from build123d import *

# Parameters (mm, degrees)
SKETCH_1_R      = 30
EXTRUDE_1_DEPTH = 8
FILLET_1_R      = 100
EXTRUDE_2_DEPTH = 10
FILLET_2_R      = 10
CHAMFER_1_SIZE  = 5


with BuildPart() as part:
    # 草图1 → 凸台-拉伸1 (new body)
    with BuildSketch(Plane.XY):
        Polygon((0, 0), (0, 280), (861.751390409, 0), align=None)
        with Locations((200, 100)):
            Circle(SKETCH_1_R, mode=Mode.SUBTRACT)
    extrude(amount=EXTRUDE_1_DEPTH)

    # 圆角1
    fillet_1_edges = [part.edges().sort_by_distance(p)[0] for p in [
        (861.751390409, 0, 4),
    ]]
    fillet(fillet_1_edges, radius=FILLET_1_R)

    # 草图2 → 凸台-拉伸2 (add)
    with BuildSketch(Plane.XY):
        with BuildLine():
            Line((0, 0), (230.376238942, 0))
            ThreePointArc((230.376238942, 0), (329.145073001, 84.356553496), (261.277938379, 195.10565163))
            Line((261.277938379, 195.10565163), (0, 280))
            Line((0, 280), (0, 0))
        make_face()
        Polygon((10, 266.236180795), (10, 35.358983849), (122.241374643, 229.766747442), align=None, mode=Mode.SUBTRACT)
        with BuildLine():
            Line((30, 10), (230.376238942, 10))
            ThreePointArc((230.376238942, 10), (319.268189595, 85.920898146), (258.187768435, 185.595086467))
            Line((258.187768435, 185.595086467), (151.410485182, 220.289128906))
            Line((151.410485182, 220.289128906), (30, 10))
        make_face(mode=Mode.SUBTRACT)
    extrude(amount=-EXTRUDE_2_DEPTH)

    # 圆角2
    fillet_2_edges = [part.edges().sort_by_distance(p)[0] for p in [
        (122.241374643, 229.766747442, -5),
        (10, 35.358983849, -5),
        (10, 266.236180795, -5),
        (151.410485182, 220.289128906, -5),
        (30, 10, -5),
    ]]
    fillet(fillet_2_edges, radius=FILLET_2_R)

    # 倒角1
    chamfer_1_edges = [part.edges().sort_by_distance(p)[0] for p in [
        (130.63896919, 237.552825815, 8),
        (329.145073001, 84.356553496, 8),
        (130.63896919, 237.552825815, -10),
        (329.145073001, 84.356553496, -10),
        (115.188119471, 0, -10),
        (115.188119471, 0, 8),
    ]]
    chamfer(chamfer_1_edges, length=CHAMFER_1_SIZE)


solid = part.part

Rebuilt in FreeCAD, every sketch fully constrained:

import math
import FreeCAD as App
import Part
import Sketcher
from FreeCAD import Vector
Q = App.Units.Quantity


def edges_at(feature, points):
    """Names of the edges that pass closest to the given points."""
    edges = feature.Shape.Edges
    near = lambda p: min(range(len(edges)), key=lambda i: edges[i].distToShape(Part.Vertex(*p))[0])
    return sorted({f"Edge{near(p) + 1}" for p in points})


def add_polygon(sketch, points):
    """Adds a closed chain of lines whose ends are joined by coincident constraints."""
    first, n = sketch.GeometryCount, len(points)
    for a, b in zip(points, points[1:] + points[:1]):
        sketch.addGeometry(Part.LineSegment(App.Vector(*a, 0), App.Vector(*b, 0)), False)
    for i in range(n):
        sketch.addConstraint(Sketcher.Constraint("Coincident", first + i, 2, first + (i + 1) % n, 1))

doc = App.newDocument("Part")
params = doc.addObject("Spreadsheet::Sheet", "Params")
for row, (alias, value) in enumerate([
    ("sketch1_diameter", "60 mm"),
    ("sketch1_height", "280 mm"),
    ("pad1_length", "8 mm"),
    ("fillet_radius", "100 mm"),
    ("sketch2_radius", "100 mm"),
    ("sketch2_radius2", "90 mm"),
    ("sketch2_height", "280 mm"),
    ("pad2_length", "10 mm"),
    ("fillet2_radius", "10 mm"),
    ("chamfer_size", "5 mm"),
], start=1):
    params.set(f"A{row}", alias)
    params.set(f"B{row}", "=" + value)
    params.setAlias(f"B{row}", alias)

body = doc.addObject("PartDesign::Body", "Body")

# Sketch on XY plane
sketch1 = body.newObject("Sketcher::SketchObject", "Sketch")
sketch1.AttachmentSupport = (doc.getObject("XY_Plane"), [""])
sketch1.MapMode = "FlatFace"
add_polygon(sketch1, [(0, 280), (0, 0), (861.75139, 0)])  # lines 0-2
sketch1.addGeometry(Part.Circle(Vector(200, 100, 0), Vector(0, 0, 1), 30), False)  # 3
sketch1.addConstraint(Sketcher.Constraint("Vertical", 0))
sketch1.addConstraint(Sketcher.Constraint("Horizontal", 1))
sketch1.addConstraint(Sketcher.Constraint("Coincident", 0, 2, -1, 1))
sketch1.addConstraint(Sketcher.Constraint("Diameter", 3, 60.0))
sketch1.addConstraint(Sketcher.Constraint("DistanceY", 0, 2, 0, 1, 280.0))
sketch1.addConstraint(Sketcher.Constraint("Angle", 2, Q("162 deg")))
sketch1.addConstraint(Sketcher.Constraint("DistanceX", -1, 1, 3, 3, 200.0))
sketch1.addConstraint(Sketcher.Constraint("DistanceY", -1, 1, 3, 3, 100.0))
sketch1.setExpression("Constraints[6]", "Params.sketch1_diameter")
sketch1.setExpression("Constraints[7]", "Params.sketch1_height")
pad1 = body.newObject("PartDesign::Pad", "Pad")
pad1.Profile = sketch1
pad1.setExpression("Length", "Params.pad1_length")
doc.recompute()

fillet = body.newObject("PartDesign::Fillet", "Fillet")
fillet.Base = (pad1, edges_at(pad1, [(861.751, 0, 4)]))
fillet.setExpression("Radius", "Params.fillet_radius")

# Sketch on XY plane
sketch2 = body.newObject("Sketcher::SketchObject", "Sketch001")
sketch2.AttachmentSupport = (doc.getObject("XY_Plane"), [""])
sketch2.MapMode = "FlatFace"
sketch2.addGeometry(Part.LineSegment(Vector(0, 0, 0), Vector(230.376239, 0, 0)), False)  # 0
sketch2.addGeometry(Part.ArcOfCircle(Part.Circle(Vector(230.376239, 100, 0), Vector(0, 0, 1), 100), math.radians(-90), math.radians(72)), False)  # 1
sketch2.addGeometry(Part.LineSegment(Vector(261.277938, 195.105652, 0), Vector(0, 280, 0)), False)  # 2
sketch2.addGeometry(Part.LineSegment(Vector(0, 280, 0), Vector(0, 0, 0)), False)  # 3
sketch2.addGeometry(Part.LineSegment(Vector(230.376239, 10, 0), Vector(30, 10, 0)), False)  # 4
sketch2.addGeometry(Part.LineSegment(Vector(30, 10, 0), Vector(151.410485, 220.289129, 0)), False)  # 5
sketch2.addGeometry(Part.LineSegment(Vector(151.410485, 220.289129, 0), Vector(258.187768, 185.595086, 0)), False)  # 6
sketch2.addGeometry(Part.ArcOfCircle(Part.Circle(Vector(230.376239, 100, 0), Vector(0, 0, 1), 90), math.radians(-90), math.radians(72)), False)  # 7
add_polygon(sketch2, [(10, 35.358984), (10, 266.236181), (122.241375, 229.766747)])  # lines 8-10
sketch2.addConstraint(Sketcher.Constraint("Tangent", 0, 2, 1, 1))
sketch2.addConstraint(Sketcher.Constraint("Tangent", 1, 2, 2, 1))
sketch2.addConstraint(Sketcher.Constraint("Coincident", 2, 2, 3, 1))
sketch2.addConstraint(Sketcher.Constraint("Coincident", 3, 2, 0, 1))
sketch2.addConstraint(Sketcher.Constraint("Coincident", 4, 2, 5, 1))
sketch2.addConstraint(Sketcher.Constraint("Coincident", 5, 2, 6, 1))
sketch2.addConstraint(Sketcher.Constraint("Tangent", 6, 2, 7, 2))
sketch2.addConstraint(Sketcher.Constraint("Tangent", 7, 1, 4, 1))
sketch2.addConstraint(Sketcher.Constraint("Horizontal", 0))
sketch2.addConstraint(Sketcher.Constraint("Vertical", 3))
sketch2.addConstraint(Sketcher.Constraint("Horizontal", 4))
sketch2.addConstraint(Sketcher.Constraint("Vertical", 8))
sketch2.addConstraint(Sketcher.Constraint("Coincident", 3, 2, -1, 1))
sketch2.addConstraint(Sketcher.Constraint("Coincident", 7, 3, 1, 3))
sketch2.addConstraint(Sketcher.Constraint("Parallel", 2, 6))
sketch2.addConstraint(Sketcher.Constraint("Parallel", 6, 9))
sketch2.addConstraint(Sketcher.Constraint("Parallel", 5, 10))
sketch2.addConstraint(Sketcher.Constraint("Radius", 1, 100.0))
sketch2.addConstraint(Sketcher.Constraint("Radius", 7, 90.0))
sketch2.addConstraint(Sketcher.Constraint("DistanceY", 3, 2, 3, 1, 280.0))
sketch2.addConstraint(Sketcher.Constraint("Angle", 2, Q("162 deg")))
sketch2.addConstraint(Sketcher.Constraint("Angle", 5, Q("60 deg")))
sketch2.addConstraint(Sketcher.Constraint("DistanceX", -1, 1, 4, 2, 30.0))
sketch2.addConstraint(Sketcher.Constraint("DistanceX", -1, 1, 8, 2, 10.0))
sketch2.addConstraint(Sketcher.Constraint("Distance", 10, 224.482749))
sketch2.addConstraint(Sketcher.Constraint("DistanceY", -1, 1, 8, 2, 266.236181))
sketch2.setExpression("Constraints[20]", "Params.sketch2_radius")
sketch2.setExpression("Constraints[21]", "Params.sketch2_radius2")
sketch2.setExpression("Constraints[22]", "Params.sketch2_height")
pad2 = body.newObject("PartDesign::Pad", "Pad001")
pad2.Profile = sketch2
pad2.setExpression("Length", "Params.pad2_length")
pad2.Reversed = True
doc.recompute()

fillet2 = body.newObject("PartDesign::Fillet", "Fillet001")
fillet2.Base = (pad2, edges_at(pad2, [
    (122.241, 229.767, -5),
    (10, 35.359, -5),
    (10, 266.236, -5),
    (151.41, 220.289, -5),
    (30, 10, -5),
]))
fillet2.setExpression("Radius", "Params.fillet2_radius")
doc.recompute()

chamfer = body.newObject("PartDesign::Chamfer", "Chamfer")
chamfer.Base = (fillet2, edges_at(fillet2, [
    (130.639, 237.553, 8),
    (329.145, 84.357, 8),
    (130.639, 237.553, -10),
    (329.145, 84.357, -10),
    (115.188, 0, -10),
    (115.188, 0, 8),
]))
chamfer.setExpression("Size", "Params.chamfer_size")

doc.recompute()
